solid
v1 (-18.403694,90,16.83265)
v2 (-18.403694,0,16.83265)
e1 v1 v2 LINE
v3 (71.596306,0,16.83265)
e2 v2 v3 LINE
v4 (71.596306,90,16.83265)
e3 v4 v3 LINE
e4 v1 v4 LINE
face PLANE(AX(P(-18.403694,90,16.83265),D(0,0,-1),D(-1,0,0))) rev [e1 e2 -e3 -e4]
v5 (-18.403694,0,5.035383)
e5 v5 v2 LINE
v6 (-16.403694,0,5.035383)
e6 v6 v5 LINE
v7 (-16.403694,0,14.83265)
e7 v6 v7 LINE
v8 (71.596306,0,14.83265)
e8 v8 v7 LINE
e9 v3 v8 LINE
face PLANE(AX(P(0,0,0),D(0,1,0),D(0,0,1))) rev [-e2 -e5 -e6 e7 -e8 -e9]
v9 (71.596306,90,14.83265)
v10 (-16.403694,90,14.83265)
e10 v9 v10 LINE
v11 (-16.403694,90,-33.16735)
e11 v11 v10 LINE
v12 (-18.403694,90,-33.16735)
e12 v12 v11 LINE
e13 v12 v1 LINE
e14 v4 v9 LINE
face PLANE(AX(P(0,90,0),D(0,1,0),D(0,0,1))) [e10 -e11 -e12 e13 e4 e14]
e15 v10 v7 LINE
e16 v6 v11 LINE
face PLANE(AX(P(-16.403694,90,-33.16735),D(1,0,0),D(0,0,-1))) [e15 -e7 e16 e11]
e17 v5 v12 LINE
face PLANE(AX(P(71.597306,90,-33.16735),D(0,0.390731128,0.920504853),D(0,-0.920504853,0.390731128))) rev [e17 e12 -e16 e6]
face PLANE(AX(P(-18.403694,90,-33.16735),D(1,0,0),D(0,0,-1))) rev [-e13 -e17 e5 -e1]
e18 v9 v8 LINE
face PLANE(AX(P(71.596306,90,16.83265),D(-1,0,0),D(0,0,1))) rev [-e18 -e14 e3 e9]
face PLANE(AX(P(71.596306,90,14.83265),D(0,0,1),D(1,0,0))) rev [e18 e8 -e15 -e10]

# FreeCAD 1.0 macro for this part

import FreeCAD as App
import Part
import Sketcher

V = App.Vector
Q = App.Units.Quantity

doc = App.newDocument("Part")
params = doc.addObject("Spreadsheet::Sheet", "Params")
for row, (alias, value) in enumerate([
    ("sketch1_width", "90 mm"),
    ("sketch1_width2", "88 mm"),
    ("sketch1_height", "50 mm"),
    ("pad1_length", "90 mm"),
    ("sketch2_width", "90 mm"),
], start=1):
    params.set(f"A{row}", alias)
    params.set(f"B{row}", "=" + value)
    params.setAlias(f"B{row}", alias)

body = doc.addObject("PartDesign::Body", "Body")

sketch1 = doc.addObject("Sketcher::SketchObject", "Sketch")
body.addObject(sketch1)
sketch1.AttachmentSupport = (doc.XZ_Plane, [""])
sketch1.MapMode = "FlatFace"
sketch1.addGeometry([
    Part.LineSegment(V(-18.4, -33.2, 0), V(-18.4, 16.8, 0)),
    Part.LineSegment(V(-18.4, 16.8, 0), V(71.6, 16.8, 0)),
    Part.LineSegment(V(71.6, 16.8, 0), V(71.6, 14.8, 0)),
    Part.LineSegment(V(71.6, 14.8, 0), V(-16.4, 14.8, 0)),
    Part.LineSegment(V(-16.4, 14.8, 0), V(-16.4, -33.2, 0)),
    Part.LineSegment(V(-16.4, -33.2, 0), V(-18.4, -33.2, 0)),
], False)
sketch1.addConstraint([
    Sketcher.Constraint("Coincident", 0, 2, 1, 1),
    Sketcher.Constraint("Coincident", 1, 2, 2, 1),
    Sketcher.Constraint("Coincident", 2, 2, 3, 1),
    Sketcher.Constraint("Coincident", 3, 2, 4, 1),
    Sketcher.Constraint("Coincident", 4, 2, 5, 1),
    Sketcher.Constraint("Coincident", 5, 2, 0, 1),
    Sketcher.Constraint("Vertical", 0),
    Sketcher.Constraint("Horizontal", 1),
    Sketcher.Constraint("Vertical", 2),
    Sketcher.Constraint("Horizontal", 3),
    Sketcher.Constraint("Vertical", 4),
    Sketcher.Constraint("Horizontal", 5),
    Sketcher.Constraint("Equal", 5, 2),
    Sketcher.Constraint("DistanceX", 1, 1, 1, 2, Q("90 mm")),
    Sketcher.Constraint("DistanceX", 3, 2, 3, 1, Q("88 mm")),
    Sketcher.Constraint("DistanceY", 0, 1, 0, 2, Q("50 mm")),
    Sketcher.Constraint("DistanceY", -1, 1, 0, 2, Q("16.83265 mm")),
    Sketcher.Constraint("DistanceX", 0, 2, -1, 1, Q("18.403694 mm")),
])
sketch1.setExpression("Constraints[13]", "Params.sketch1_width")
sketch1.setExpression("Constraints[14]", "Params.sketch1_width2")
sketch1.setExpression("Constraints[15]", "Params.sketch1_height")
pad1 = doc.addObject("PartDesign::Pad", "Pad")
body.addObject(pad1)
pad1.Profile = sketch1
pad1.setExpression("Length", "Params.pad1_length")
pad1.Reversed = True

sketch2 = doc.addObject("Sketcher::SketchObject", "Sketch001")
body.addObject(sketch2)
sketch2.AttachmentSupport = (doc.YZ_Plane, [""])
sketch2.MapMode = "FlatFace"
sketch2.AttachmentOffset = App.Placement(V(0, 0, -18.403694), App.Rotation())
sketch2.addGeometry([
    Part.LineSegment(V(0, 5, 0), V(90, -33, 0)),
    Part.LineSegment(V(90, -33, 0), V(0, -33, 0)),
    Part.LineSegment(V(0, -33, 0), V(0, 5, 0)),
], False)
sketch2.addConstraint([
    Sketcher.Constraint("Coincident", 0, 2, 1, 1),
    Sketcher.Constraint("Coincident", 1, 2, 2, 1),
    Sketcher.Constraint("Coincident", 2, 2, 0, 1),
    Sketcher.Constraint("Horizontal", 1),
    Sketcher.Constraint("Vertical", 2),
    Sketcher.Constraint("PointOnObject", 1, 2, -2),
    Sketcher.Constraint("DistanceX", 1, 2, 1, 1, Q("90 mm")),
    Sketcher.Constraint("Angle", 0, Q("-23 deg")),
    Sketcher.Constraint("DistanceY", 0, 2, -1, 1, Q("33.16735 mm")),
])
sketch2.setExpression("Constraints[6]", "Params.sketch2_width")
pocket1 = doc.addObject("PartDesign::Pocket", "Pocket")
body.addObject(pocket1)
pocket1.Profile = sketch2
pocket1.Type = "UpToFirst"
pocket1.Reversed = True

doc.recompute()
